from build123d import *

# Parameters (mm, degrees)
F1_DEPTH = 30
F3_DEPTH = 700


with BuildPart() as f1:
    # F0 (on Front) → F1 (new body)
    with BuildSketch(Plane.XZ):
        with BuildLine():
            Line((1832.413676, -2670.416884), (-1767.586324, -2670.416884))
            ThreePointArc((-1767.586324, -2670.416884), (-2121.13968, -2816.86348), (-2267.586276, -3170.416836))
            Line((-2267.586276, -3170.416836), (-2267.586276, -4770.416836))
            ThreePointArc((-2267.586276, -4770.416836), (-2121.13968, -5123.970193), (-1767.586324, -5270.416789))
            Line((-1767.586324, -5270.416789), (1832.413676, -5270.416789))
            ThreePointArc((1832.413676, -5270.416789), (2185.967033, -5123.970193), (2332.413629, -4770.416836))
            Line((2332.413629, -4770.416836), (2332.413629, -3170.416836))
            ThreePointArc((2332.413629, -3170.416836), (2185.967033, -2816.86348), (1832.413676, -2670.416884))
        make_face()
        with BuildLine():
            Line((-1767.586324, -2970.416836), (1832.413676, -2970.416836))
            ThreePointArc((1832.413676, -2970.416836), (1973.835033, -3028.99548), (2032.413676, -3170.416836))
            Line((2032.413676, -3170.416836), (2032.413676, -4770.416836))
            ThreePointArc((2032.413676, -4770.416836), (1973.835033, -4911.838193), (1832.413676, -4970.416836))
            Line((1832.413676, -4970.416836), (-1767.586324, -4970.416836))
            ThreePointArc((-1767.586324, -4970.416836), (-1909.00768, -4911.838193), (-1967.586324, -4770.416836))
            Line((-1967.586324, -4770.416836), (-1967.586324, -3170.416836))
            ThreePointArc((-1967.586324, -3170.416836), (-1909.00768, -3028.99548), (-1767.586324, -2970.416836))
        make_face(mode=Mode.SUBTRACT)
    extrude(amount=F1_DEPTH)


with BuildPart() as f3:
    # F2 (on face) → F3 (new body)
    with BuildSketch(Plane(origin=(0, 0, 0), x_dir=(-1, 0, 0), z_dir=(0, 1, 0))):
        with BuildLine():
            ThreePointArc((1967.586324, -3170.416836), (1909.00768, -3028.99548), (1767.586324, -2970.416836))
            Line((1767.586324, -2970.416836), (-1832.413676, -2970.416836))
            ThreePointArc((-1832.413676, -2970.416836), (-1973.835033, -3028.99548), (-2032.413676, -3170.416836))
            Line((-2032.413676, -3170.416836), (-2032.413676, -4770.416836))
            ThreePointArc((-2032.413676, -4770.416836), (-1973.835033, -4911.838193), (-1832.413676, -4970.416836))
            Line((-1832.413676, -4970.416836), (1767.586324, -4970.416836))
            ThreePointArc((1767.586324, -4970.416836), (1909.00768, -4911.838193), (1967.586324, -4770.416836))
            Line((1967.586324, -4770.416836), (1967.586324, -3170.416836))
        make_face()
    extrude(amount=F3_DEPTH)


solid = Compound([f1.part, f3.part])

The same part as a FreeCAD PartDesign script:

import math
import FreeCAD as App
import Part
import Sketcher
from FreeCAD import Vector
Q = App.Units.Quantity

doc = App.newDocument("Part")
params = doc.addObject("Spreadsheet::Sheet", "Params")
for row, (alias, value) in enumerate([
    ("sketch1_radius", "200.000001 mm"),
    ("sketch1_width", "3600 mm"),
    ("sketch1_height", "1600 mm"),
    ("pad1_length", "30 mm"),
    ("sketch2_radius", "200.000001 mm"),
    ("sketch2_width", "3600 mm"),
    ("sketch2_height", "1600 mm"),
    ("pad2_length", "700 mm"),
], start=1):
    params.set(f"A{row}", alias)
    params.set(f"B{row}", "=" + value)
    params.setAlias(f"B{row}", alias)

body = doc.addObject("PartDesign::Body", "Body")

sketch1 = body.newObject("Sketcher::SketchObject", "Sketch")
sketch1.AttachmentSupport = (doc.getObject("XZ_Plane"), [""])
sketch1.MapMode = "FlatFace"
sketch1.addGeometry(Part.LineSegment(Vector(1832, -2670, 0), Vector(-1768, -2670, 0)), False)
sketch1.addGeometry(Part.ArcOfCircle(Part.Circle(Vector(-1768, -3170, 0), Vector(0, 0, 1), 500), math.radians(90), math.radians(180)), False)
sketch1.addGeometry(Part.LineSegment(Vector(-2268, -3170, 0), Vector(-2268, -4770, 0)), False)
sketch1.addGeometry(Part.ArcOfCircle(Part.Circle(Vector(-1768, -4770, 0), Vector(0, 0, 1), 500), math.radians(-180), math.radians(-90)), False)
sketch1.addGeometry(Part.LineSegment(Vector(-1768, -5270, 0), Vector(1832, -5270, 0)), False)
sketch1.addGeometry(Part.ArcOfCircle(Part.Circle(Vector(1832, -4770, 0), Vector(0, 0, 1), 500), math.radians(-90), math.radians(0)), False)
sketch1.addGeometry(Part.LineSegment(Vector(2332, -4770, 0), Vector(2332, -3170, 0)), False)
sketch1.addGeometry(Part.ArcOfCircle(Part.Circle(Vector(1832, -3170, 0), Vector(0, 0, 1), 500), math.radians(0), math.radians(90)), False)
sketch1.addGeometry(Part.ArcOfCircle(Part.Circle(Vector(-1768, -3170, 0), Vector(0, 0, 1), 200), math.radians(90), math.radians(180)), False)
sketch1.addGeometry(Part.LineSegment(Vector(-1768, -2970, 0), Vector(1832, -2970, 0)), False)
sketch1.addGeometry(Part.ArcOfCircle(Part.Circle(Vector(1832, -3170, 0), Vector(0, 0, 1), 200), math.radians(0), math.radians(90)), False)
sketch1.addGeometry(Part.LineSegment(Vector(2032, -3170, 0), Vector(2032, -4770, 0)), False)
sketch1.addGeometry(Part.ArcOfCircle(Part.Circle(Vector(1832, -4770, 0), Vector(0, 0, 1), 200), math.radians(-90), math.radians(0)), False)
sketch1.addGeometry(Part.LineSegment(Vector(1832, -4970, 0), Vector(-1768, -4970, 0)), False)
sketch1.addGeometry(Part.ArcOfCircle(Part.Circle(Vector(-1768, -4770, 0), Vector(0, 0, 1), 200), math.radians(180), math.radians(270)), False)
sketch1.addGeometry(Part.LineSegment(Vector(-1968, -4770, 0), Vector(-1968, -3170, 0)), False)
sketch1.addConstraint(Sketcher.Constraint("Tangent", 0, 2, 1, 1))
sketch1.addConstraint(Sketcher.Constraint("Tangent", 1, 2, 2, 1))
sketch1.addConstraint(Sketcher.Constraint("Tangent", 2, 2, 3, 1))
sketch1.addConstraint(Sketcher.Constraint("Tangent", 3, 2, 4, 1))
sketch1.addConstraint(Sketcher.Constraint("Tangent", 4, 2, 5, 1))
sketch1.addConstraint(Sketcher.Constraint("Tangent", 5, 2, 6, 1))
sketch1.addConstraint(Sketcher.Constraint("Tangent", 6, 2, 7, 1))
sketch1.addConstraint(Sketcher.Constraint("Tangent", 7, 2, 0, 1))
sketch1.addConstraint(Sketcher.Constraint("Tangent", 8, 1, 9, 1))
sketch1.addConstraint(Sketcher.Constraint("Tangent", 9, 2, 10, 2))
sketch1.addConstraint(Sketcher.Constraint("Tangent", 10, 1, 11, 1))
sketch1.addConstraint(Sketcher.Constraint("Tangent", 11, 2, 12, 2))
sketch1.addConstraint(Sketcher.Constraint("Tangent", 12, 1, 13, 1))
sketch1.addConstraint(Sketcher.Constraint("Tangent", 13, 2, 14, 2))
sketch1.addConstraint(Sketcher.Constraint("Tangent", 14, 1, 15, 1))
sketch1.addConstraint(Sketcher.Constraint("Tangent", 15, 2, 8, 2))
sketch1.addConstraint(Sketcher.Constraint("Horizontal", 0))
sketch1.addConstraint(Sketcher.Constraint("Vertical", 2))
sketch1.addConstraint(Sketcher.Constraint("Horizontal", 4))
sketch1.addConstraint(Sketcher.Constraint("Vertical", 6))
sketch1.addConstraint(Sketcher.Constraint("Horizontal", 9))
sketch1.addConstraint(Sketcher.Constraint("Vertical", 11))
sketch1.addConstraint(Sketcher.Constraint("Horizontal", 13))
sketch1.addConstraint(Sketcher.Constraint("Vertical", 15))
sketch1.addConstraint(Sketcher.Constraint("Coincident", 8, 3, 1, 3))
sketch1.addConstraint(Sketcher.Constraint("Coincident", 10, 3, 7, 3))
sketch1.addConstraint(Sketcher.Constraint("Coincident", 12, 3, 5, 3))
sketch1.addConstraint(Sketcher.Constraint("Equal", 1, 3))
sketch1.addConstraint(Sketcher.Constraint("Equal", 3, 5))
sketch1.addConstraint(Sketcher.Constraint("Equal", 5, 7))
sketch1.addConstraint(Sketcher.Constraint("Equal", 12, 14))
sketch1.addConstraint(Sketcher.Constraint("Radius", 8, Q("200.000001 mm")))
sketch1.addConstraint(Sketcher.Constraint("DistanceX", 0, 2, 0, 1, Q("3600 mm")))
sketch1.addConstraint(Sketcher.Constraint("DistanceY", 2, 2, 2, 1, Q("1600 mm")))
sketch1.addConstraint(Sketcher.Constraint("Radius", 1, Q("499.999954 mm")))
sketch1.addConstraint(Sketcher.Constraint("DistanceX", 1, 3, -1, 1, Q("1767.586322 mm")))
sketch1.addConstraint(Sketcher.Constraint("DistanceY", 1, 3, -1, 1, Q("3170.416838 mm")))
sketch1.setExpression("Constraints[31]", "Params.sketch1_radius")
sketch1.setExpression("Constraints[32]", "Params.sketch1_width")
sketch1.setExpression("Constraints[33]", "Params.sketch1_height")
pad1 = body.newObject("PartDesign::Pad", "Pad")
pad1.Profile = sketch1
pad1.setExpression("Length", "Params.pad1_length")
body2 = doc.addObject("PartDesign::Body", "Body001")

sketch2 = body2.newObject("Sketcher::SketchObject", "Sketch001")
sketch2.AttachmentSupport = (doc.getObject("XZ_Plane001"), [""])
sketch2.MapMode = "FlatFace"
sketch2.addGeometry(Part.ArcOfCircle(Part.Circle(Vector(-1768, -3170, 0), Vector(0, 0, 1), 200), math.radians(90), math.radians(180)), False)
sketch2.addGeometry(Part.LineSegment(Vector(-1768, -2970, 0), Vector(1832, -2970, 0)), False)
sketch2.addGeometry(Part.ArcOfCircle(Part.Circle(Vector(1832, -3170, 0), Vector(0, 0, 1), 200), math.radians(0), math.radians(90)), False)
sketch2.addGeometry(Part.LineSegment(Vector(2032, -3170, 0), Vector(2032, -4770, 0)), False)
sketch2.addGeometry(Part.ArcOfCircle(Part.Circle(Vector(1832, -4770, 0), Vector(0, 0, 1), 200), math.radians(-90), math.radians(0)), False)
sketch2.addGeometry(Part.LineSegment(Vector(1832, -4970, 0), Vector(-1768, -4970, 0)), False)
sketch2.addGeometry(Part.ArcOfCircle(Part.Circle(Vector(-1768, -4770, 0), Vector(0, 0, 1), 200), math.radians(180), math.radians(270)), False)
sketch2.addGeometry(Part.LineSegment(Vector(-1968, -4770, 0), Vector(-1968, -3170, 0)), False)
sketch2.addConstraint(Sketcher.Constraint("Tangent", 0, 1, 1, 1))
sketch2.addConstraint(Sketcher.Constraint("Tangent", 1, 2, 2, 2))
sketch2.addConstraint(Sketcher.Constraint("Tangent", 2, 1, 3, 1))
sketch2.addConstraint(Sketcher.Constraint("Tangent", 3, 2, 4, 2))
sketch2.addConstraint(Sketcher.Constraint("Tangent", 4, 1, 5, 1))
sketch2.addConstraint(Sketcher.Constraint("Tangent", 5, 2, 6, 2))
sketch2.addConstraint(Sketcher.Constraint("Tangent", 6, 1, 7, 1))
sketch2.addConstraint(Sketcher.Constraint("Tangent", 7, 2, 0, 2))
sketch2.addConstraint(Sketcher.Constraint("Horizontal", 1))
sketch2.addConstraint(Sketcher.Constraint("Vertical", 3))
sketch2.addConstraint(Sketcher.Constraint("Horizontal", 5))
sketch2.addConstraint(Sketcher.Constraint("Vertical", 7))
sketch2.addConstraint(Sketcher.Constraint("Equal", 0, 2))
sketch2.addConstraint(Sketcher.Constraint("Equal", 2, 4))
sketch2.addConstraint(Sketcher.Constraint("Equal", 4, 6))
sketch2.addConstraint(Sketcher.Constraint("Radius", 0, Q("200.000001 mm")))
sketch2.addConstraint(Sketcher.Constraint("DistanceX", 1, 1, 1, 2, Q("3600 mm")))
sketch2.addConstraint(Sketcher.Constraint("DistanceY", 3, 2, 3, 1, Q("1600 mm")))
sketch2.addConstraint(Sketcher.Constraint("DistanceX", -1, 1, 4, 3, Q("1832.413679 mm")))
sketch2.addConstraint(Sketcher.Constraint("DistanceY", 4, 3, -1, 1, Q("4770.416839 mm")))
sketch2.setExpression("Constraints[15]", "Params.sketch2_radius")
sketch2.setExpression("Constraints[16]", "Params.sketch2_width")
sketch2.setExpression("Constraints[17]", "Params.sketch2_height")
pad2 = body2.newObject("PartDesign::Pad", "Pad001")
pad2.Profile = sketch2
pad2.setExpression("Length", "Params.pad2_length")
pad2.Reversed = True

doc.recompute()
